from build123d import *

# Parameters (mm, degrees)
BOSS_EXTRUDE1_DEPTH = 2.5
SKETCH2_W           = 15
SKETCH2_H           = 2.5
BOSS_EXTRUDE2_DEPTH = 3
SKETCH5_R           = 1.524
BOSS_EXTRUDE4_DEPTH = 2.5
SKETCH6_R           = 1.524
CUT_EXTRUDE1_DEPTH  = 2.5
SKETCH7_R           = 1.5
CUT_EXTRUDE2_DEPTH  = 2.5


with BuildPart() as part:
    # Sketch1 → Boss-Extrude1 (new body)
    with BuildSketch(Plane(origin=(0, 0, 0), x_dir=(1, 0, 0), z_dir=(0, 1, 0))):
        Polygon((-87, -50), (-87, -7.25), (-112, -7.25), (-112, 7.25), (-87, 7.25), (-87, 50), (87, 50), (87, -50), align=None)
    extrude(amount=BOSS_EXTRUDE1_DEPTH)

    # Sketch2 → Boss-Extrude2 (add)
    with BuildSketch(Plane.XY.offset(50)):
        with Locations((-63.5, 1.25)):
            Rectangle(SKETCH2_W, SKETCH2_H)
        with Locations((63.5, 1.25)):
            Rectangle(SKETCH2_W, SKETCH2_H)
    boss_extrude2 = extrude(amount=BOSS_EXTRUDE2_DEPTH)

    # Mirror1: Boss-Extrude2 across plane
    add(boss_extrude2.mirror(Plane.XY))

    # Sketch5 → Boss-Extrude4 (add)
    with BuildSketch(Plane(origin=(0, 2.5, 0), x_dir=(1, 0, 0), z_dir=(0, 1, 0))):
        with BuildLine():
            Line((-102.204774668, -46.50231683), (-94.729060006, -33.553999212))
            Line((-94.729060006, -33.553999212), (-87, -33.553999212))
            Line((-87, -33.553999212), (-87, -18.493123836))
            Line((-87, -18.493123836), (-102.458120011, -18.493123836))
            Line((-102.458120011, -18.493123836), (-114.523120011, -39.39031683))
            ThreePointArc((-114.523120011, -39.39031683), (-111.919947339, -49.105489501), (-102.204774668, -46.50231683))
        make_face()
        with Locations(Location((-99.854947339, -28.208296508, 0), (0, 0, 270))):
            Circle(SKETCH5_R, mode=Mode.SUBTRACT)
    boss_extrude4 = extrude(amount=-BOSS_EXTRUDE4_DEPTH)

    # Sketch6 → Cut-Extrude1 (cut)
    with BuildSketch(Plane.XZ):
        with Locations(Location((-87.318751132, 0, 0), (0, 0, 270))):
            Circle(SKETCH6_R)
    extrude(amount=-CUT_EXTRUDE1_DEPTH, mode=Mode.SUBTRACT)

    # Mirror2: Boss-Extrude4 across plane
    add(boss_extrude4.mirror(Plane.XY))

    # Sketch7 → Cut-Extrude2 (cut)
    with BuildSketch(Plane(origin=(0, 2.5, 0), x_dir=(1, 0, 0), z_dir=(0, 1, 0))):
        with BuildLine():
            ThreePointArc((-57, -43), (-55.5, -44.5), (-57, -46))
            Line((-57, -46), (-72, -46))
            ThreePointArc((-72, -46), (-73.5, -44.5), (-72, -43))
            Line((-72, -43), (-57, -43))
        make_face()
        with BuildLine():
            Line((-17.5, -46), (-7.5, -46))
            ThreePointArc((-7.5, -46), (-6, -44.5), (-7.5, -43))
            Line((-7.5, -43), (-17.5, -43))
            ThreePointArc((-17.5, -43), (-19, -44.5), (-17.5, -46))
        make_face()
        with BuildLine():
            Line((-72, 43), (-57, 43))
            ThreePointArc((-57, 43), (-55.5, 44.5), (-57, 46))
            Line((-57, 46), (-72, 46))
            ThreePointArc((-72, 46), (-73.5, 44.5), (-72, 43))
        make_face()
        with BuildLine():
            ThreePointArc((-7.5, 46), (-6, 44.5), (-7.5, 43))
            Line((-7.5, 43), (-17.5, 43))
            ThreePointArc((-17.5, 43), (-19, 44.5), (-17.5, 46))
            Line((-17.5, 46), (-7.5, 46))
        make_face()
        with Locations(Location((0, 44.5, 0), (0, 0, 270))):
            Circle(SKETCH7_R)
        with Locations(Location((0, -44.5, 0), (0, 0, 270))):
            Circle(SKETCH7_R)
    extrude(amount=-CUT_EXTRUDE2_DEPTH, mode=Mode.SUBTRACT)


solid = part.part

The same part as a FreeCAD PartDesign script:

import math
import FreeCAD as App
import Part
import Sketcher

V = App.Vector
Q = App.Units.Quantity


def add_polygon(sketch, points):
    """Adds a closed chain of lines whose ends are joined by coincident constraints."""
    first, n = sketch.GeometryCount, len(points)
    for a, b in zip(points, points[1:] + points[:1]):
        sketch.addGeometry(Part.LineSegment(App.Vector(*a, 0), App.Vector(*b, 0)), False)
    for i in range(n):
        sketch.addConstraint(Sketcher.Constraint("Coincident", first + i, 2, first + (i + 1) % n, 1))

doc = App.newDocument("Part")
body = doc.addObject("PartDesign::Body", "Body")

# Sketch on XZ plane
sketch1 = doc.addObject("Sketcher::SketchObject", "Sketch")
body.addObject(sketch1)
sketch1.AttachmentSupport = (doc.XZ_Plane, [""])
sketch1.MapMode = "FlatFace"
add_polygon(sketch1, [(-87, 7.25), (-87, 50), (87, 50), (87, -50), (-87, -50), (-87, -7.25), (-112, -7.25), (-112, 7.25)])  # lines 0-7
sketch1.addConstraint([
    Sketcher.Constraint("Vertical", 0),
    Sketcher.Constraint("Horizontal", 1),
    Sketcher.Constraint("Vertical", 2),
    Sketcher.Constraint("Horizontal", 3),
    Sketcher.Constraint("Vertical", 4),
    Sketcher.Constraint("Horizontal", 5),
    Sketcher.Constraint("Vertical", 6),
    Sketcher.Constraint("Horizontal", 7),
    Sketcher.Constraint("Symmetric", 0, 2, 2, 2, -1, 1),
    Sketcher.Constraint("Symmetric", 4, 2, 7, 2, -1),
    Sketcher.Constraint("DistanceX", 1, 1, 1, 2, Q("174 mm")),
    Sketcher.Constraint("DistanceX", 5, 2, 5, 1, Q("25 mm")),
    Sketcher.Constraint("DistanceY", 2, 2, 2, 1, Q("100 mm")),
    Sketcher.Constraint("DistanceY", 6, 1, 6, 2, Q("14.5 mm")),
])
pad1 = doc.addObject("PartDesign::Pad", "Pad")
body.addObject(pad1)
pad1.Profile = sketch1
pad1.Length = 2.5
pad1.Reversed = True

# Sketch on XY plane
sketch2 = doc.addObject("Sketcher::SketchObject", "Sketch001")
body.addObject(sketch2)
sketch2.AttachmentSupport = (doc.XY_Plane, [""])
sketch2.MapMode = "FlatFace"
sketch2.AttachmentOffset = App.Placement(V(0, 0, 50), App.Rotation())
add_polygon(sketch2, [(-71, 2.5), (-71, 0), (-56, 0), (-56, 2.5)])  # lines 0-3
add_polygon(sketch2, [(56, 2.5), (56, 0), (71, 0), (71, 2.5)])  # lines 4-7
sketch2.addConstraint([
    Sketcher.Constraint("Vertical", 0),
    Sketcher.Constraint("Horizontal", 1),
    Sketcher.Constraint("Vertical", 2),
    Sketcher.Constraint("Horizontal", 3),
    Sketcher.Constraint("Vertical", 4),
    Sketcher.Constraint("Horizontal", 5),
    Sketcher.Constraint("Vertical", 6),
    Sketcher.Constraint("Horizontal", 7),
    Sketcher.Constraint("Symmetric", 1, 2, 4, 2, -1, 1),
    Sketcher.Constraint("Symmetric", 0, 2, 5, 2, -2),
    Sketcher.Constraint("Horizontal", 3, 2, 6, 2),
    Sketcher.Constraint("DistanceX", 1, 1, 1, 2, Q("15 mm")),
    Sketcher.Constraint("DistanceY", 0, 2, 0, 1, Q("2.5 mm")),
    Sketcher.Constraint("DistanceX", 0, 2, -1, 1, Q("71 mm")),
])
pad2 = doc.addObject("PartDesign::Pad", "Pad001")
body.addObject(pad2)
pad2.Profile = sketch2
pad2.Length = 3
doc.recompute()

mirrored = doc.addObject("PartDesign::Mirrored", "Mirrored")
body.addObject(mirrored)
mirrored.Originals = [pad2]
mirrored.MirrorPlane = (doc.XY_Plane, [""])
body.Tip = mirrored

# Sketch on XZ plane
sketch3 = doc.addObject("Sketcher::SketchObject", "Sketch002")
body.addObject(sketch3)
sketch3.AttachmentSupport = (doc.XZ_Plane, [""])
sketch3.MapMode = "FlatFace"
sketch3.AttachmentOffset = App.Placement(V(0, 0, -2.5), App.Rotation())
sketch3.addGeometry([
    Part.LineSegment(V(-102.204775, 46.502317, 0), V(-94.72906, 33.553999, 0)),  # 0
    Part.LineSegment(V(-94.72906, 33.553999, 0), V(-87, 33.553999, 0)),  # 1
    Part.LineSegment(V(-87, 33.553999, 0), V(-87, 18.493124, 0)),  # 2
    Part.LineSegment(V(-87, 18.493124, 0), V(-102.45812, 18.493124, 0)),  # 3
    Part.LineSegment(V(-102.45812, 18.493124, 0), V(-114.52312, 39.390317, 0)),  # 4
    Part.ArcOfCircle(Part.Circle(V(-108.363947, 42.946317, 0), V(0, 0, 1), 7.112), math.radians(30), math.radians(210)),  # 5
    Part.Circle(V(-99.854947, 28.208297, 0), V(0, 0, 1), 1.524),  # 6
], False)
sketch3.addConstraint([
    Sketcher.Constraint("Coincident", 0, 2, 1, 1),
    Sketcher.Constraint("Coincident", 1, 2, 2, 1),
    Sketcher.Constraint("Coincident", 2, 2, 3, 1),
    Sketcher.Constraint("Coincident", 3, 2, 4, 1),
    Sketcher.Constraint("Tangent", 4, 2, 5, 2),
    Sketcher.Constraint("Tangent", 5, 1, 0, 1),
    Sketcher.Constraint("Horizontal", 1),
    Sketcher.Constraint("Vertical", 2),
    Sketcher.Constraint("Horizontal", 3),
    Sketcher.Constraint("Parallel", 0, 4),
    Sketcher.Constraint("Angle", 0, Q("-60 deg")),
    Sketcher.Constraint("Diameter", 6, Q("3.048 mm")),
    Sketcher.Constraint("DistanceX", 1, 2, -1, 1, Q("87 mm")),
    Sketcher.Constraint("Radius", 5, Q("7.112 mm")),
    Sketcher.Constraint("Distance", 4, Q("24.13 mm")),
    Sketcher.Constraint("DistanceY", -1, 1, 0, 2, Q("33.553999 mm")),
    Sketcher.Constraint("DistanceX", 5, 3, 6, 3, Q("8.509 mm")),
    Sketcher.Constraint("DistanceX", 1, 1, 1, 2, Q("7.72906 mm")),
    Sketcher.Constraint("DistanceX", 3, 2, 3, 1, Q("15.45812 mm")),
    Sketcher.Constraint("DistanceY", 6, 3, 5, 3, Q("14.73802 mm")),
])
pad3 = doc.addObject("PartDesign::Pad", "Pad002")
body.addObject(pad3)
pad3.Profile = sketch3
pad3.Length = 2.5

# Sketch on XZ plane
sketch4 = doc.addObject("Sketcher::SketchObject", "Sketch003")
body.addObject(sketch4)
sketch4.AttachmentSupport = (doc.XZ_Plane, [""])
sketch4.MapMode = "FlatFace"
sketch4.addGeometry(Part.Circle(V(-87.318751, 0, 0), V(0, 0, 1), 1.524), False)
sketch4.addConstraint([
    Sketcher.Constraint("PointOnObject", 0, 3, -1),
    Sketcher.Constraint("Diameter", 0, Q("3.048 mm")),
    Sketcher.Constraint("DistanceX", 0, 3, -1, 1, Q("87.318751 mm")),
])
pocket1 = doc.addObject("PartDesign::Pocket", "Pocket")
body.addObject(pocket1)
pocket1.Profile = sketch4
pocket1.Length = 2.5
doc.recompute()

mirrored2 = doc.addObject("PartDesign::Mirrored", "Mirrored001")
body.addObject(mirrored2)
mirrored2.Originals = [pad3]
mirrored2.MirrorPlane = (doc.XY_Plane, [""])
body.Tip = mirrored2

# Sketch on XZ plane
sketch5 = doc.addObject("Sketcher::SketchObject", "Sketch004")
body.addObject(sketch5)
sketch5.AttachmentSupport = (doc.XZ_Plane, [""])
sketch5.MapMode = "FlatFace"
sketch5.AttachmentOffset = App.Placement(V(0, 0, -2.5), App.Rotation())
sketch5.addGeometry([
    Part.ArcOfCircle(Part.Circle(V(-57, 44.5, 0), V(0, 0, 1), 1.5), math.radians(-90), math.radians(90)),  # 0
    Part.LineSegment(V(-57, 43, 0), V(-72, 43, 0)),  # 1
    Part.ArcOfCircle(Part.Circle(V(-72, 44.5, 0), V(0, 0, 1), 1.5), math.radians(90), math.radians(270)),  # 2
    Part.LineSegment(V(-72, 46, 0), V(-57, 46, 0)),  # 3
    Part.LineSegment(V(-17.5, 46, 0), V(-7.5, 46, 0)),  # 4
    Part.ArcOfCircle(Part.Circle(V(-7.5, 44.5, 0), V(0, 0, 1), 1.5), math.radians(-90), math.radians(90)),  # 5
    Part.LineSegment(V(-7.5, 43, 0), V(-17.5, 43, 0)),  # 6
    Part.ArcOfCircle(Part.Circle(V(-17.5, 44.5, 0), V(0, 0, 1), 1.5), math.radians(90), math.radians(270)),  # 7
    Part.LineSegment(V(-72, -43, 0), V(-57, -43, 0)),  # 8
    Part.ArcOfCircle(Part.Circle(V(-57, -44.5, 0), V(0, 0, 1), 1.5), math.radians(-90), math.radians(90)),  # 9
    Part.LineSegment(V(-57, -46, 0), V(-72, -46, 0)),  # 10
    Part.ArcOfCircle(Part.Circle(V(-72, -44.5, 0), V(0, 0, 1), 1.5), math.radians(90), math.radians(270)),  # 11
    Part.ArcOfCircle(Part.Circle(V(-7.5, -44.5, 0), V(0, 0, 1), 1.5), math.radians(-90), math.radians(90)),  # 12
    Part.LineSegment(V(-7.5, -46, 0), V(-17.5, -46, 0)),  # 13
    Part.ArcOfCircle(Part.Circle(V(-17.5, -44.5, 0), V(0, 0, 1), 1.5), math.radians(90), math.radians(270)),  # 14
    Part.LineSegment(V(-17.5, -43, 0), V(-7.5, -43, 0)),  # 15
    Part.Circle(V(0, -44.5, 0), V(0, 0, 1), 1.5),  # 16
    Part.Circle(V(0, 44.5, 0), V(0, 0, 1), 1.5),  # 17
], False)
sketch5.addConstraint([
    Sketcher.Constraint("Tangent", 0, 1, 1, 1),
    Sketcher.Constraint("Tangent", 1, 2, 2, 2),
    Sketcher.Constraint("Tangent", 2, 1, 3, 1),
    Sketcher.Constraint("Tangent", 3, 2, 0, 2),
    Sketcher.Constraint("Tangent", 4, 2, 5, 2),
    Sketcher.Constraint("Tangent", 5, 1, 6, 1),
    Sketcher.Constraint("Tangent", 6, 2, 7, 2),
    Sketcher.Constraint("Tangent", 7, 1, 4, 1),
    Sketcher.Constraint("Tangent", 8, 2, 9, 2),
    Sketcher.Constraint("Tangent", 9, 1, 10, 1),
    Sketcher.Constraint("Tangent", 10, 2, 11, 2),
    Sketcher.Constraint("Tangent", 11, 1, 8, 1),
    Sketcher.Constraint("Tangent", 12, 1, 13, 1),
    Sketcher.Constraint("Tangent", 13, 2, 14, 2),
    Sketcher.Constraint("Tangent", 14, 1, 15, 1),
    Sketcher.Constraint("Tangent", 15, 2, 12, 2),
    Sketcher.Constraint("Horizontal", 1),
    Sketcher.Constraint("Horizontal", 3),
    Sketcher.Constraint("Horizontal", 4),
    Sketcher.Constraint("Horizontal", 6),
    Sketcher.Constraint("Horizontal", 8),
    Sketcher.Constraint("Horizontal", 10),
    Sketcher.Constraint("Horizontal", 13),
    Sketcher.Constraint("Horizontal", 15),
    Sketcher.Constraint("Equal", 2, 5),
    Sketcher.Constraint("Equal", 7, 9),
    Sketcher.Constraint("Equal", 11, 12),
    Sketcher.Constraint("Equal", 14, 16),
    Sketcher.Constraint("Equal", 16, 17),
    Sketcher.Constraint("Symmetric", 16, 3, 17, 3, -1, 1),
    Sketcher.Constraint("Symmetric", 0, 3, 9, 3, -1),
    Sketcher.Constraint("Symmetric", 5, 3, 12, 3, -1),
    Sketcher.Constraint("PointOnObject", 16, 3, -2),
    Sketcher.Constraint("Horizontal", 2, 3, 5, 3),
    Sketcher.Constraint("Horizontal", 14, 3, 16, 3),
    Sketcher.Constraint("Vertical", 2, 3, 11, 3),
    Sketcher.Constraint("Vertical", 7, 3, 14, 3),
    Sketcher.Constraint("Diameter", 16, Q("3 mm")),
    Sketcher.Constraint("DistanceX", 1, 2, 1, 1, Q("15 mm")),
    Sketcher.Constraint("DistanceX", 4, 1, 4, 2, Q("10 mm")),
    Sketcher.Constraint("DistanceX", 0, 3, -1, 1, Q("57 mm")),
    Sketcher.Constraint("DistanceY", -1, 1, 0, 1, Q("43 mm")),
    Sketcher.Constraint("DistanceX", 5, 3, -1, 1, Q("7.5 mm")),
])
pocket2 = doc.addObject("PartDesign::Pocket", "Pocket001")
body.addObject(pocket2)
pocket2.Profile = sketch5
pocket2.Length = 2.5
pocket2.Reversed = True

doc.recompute()
